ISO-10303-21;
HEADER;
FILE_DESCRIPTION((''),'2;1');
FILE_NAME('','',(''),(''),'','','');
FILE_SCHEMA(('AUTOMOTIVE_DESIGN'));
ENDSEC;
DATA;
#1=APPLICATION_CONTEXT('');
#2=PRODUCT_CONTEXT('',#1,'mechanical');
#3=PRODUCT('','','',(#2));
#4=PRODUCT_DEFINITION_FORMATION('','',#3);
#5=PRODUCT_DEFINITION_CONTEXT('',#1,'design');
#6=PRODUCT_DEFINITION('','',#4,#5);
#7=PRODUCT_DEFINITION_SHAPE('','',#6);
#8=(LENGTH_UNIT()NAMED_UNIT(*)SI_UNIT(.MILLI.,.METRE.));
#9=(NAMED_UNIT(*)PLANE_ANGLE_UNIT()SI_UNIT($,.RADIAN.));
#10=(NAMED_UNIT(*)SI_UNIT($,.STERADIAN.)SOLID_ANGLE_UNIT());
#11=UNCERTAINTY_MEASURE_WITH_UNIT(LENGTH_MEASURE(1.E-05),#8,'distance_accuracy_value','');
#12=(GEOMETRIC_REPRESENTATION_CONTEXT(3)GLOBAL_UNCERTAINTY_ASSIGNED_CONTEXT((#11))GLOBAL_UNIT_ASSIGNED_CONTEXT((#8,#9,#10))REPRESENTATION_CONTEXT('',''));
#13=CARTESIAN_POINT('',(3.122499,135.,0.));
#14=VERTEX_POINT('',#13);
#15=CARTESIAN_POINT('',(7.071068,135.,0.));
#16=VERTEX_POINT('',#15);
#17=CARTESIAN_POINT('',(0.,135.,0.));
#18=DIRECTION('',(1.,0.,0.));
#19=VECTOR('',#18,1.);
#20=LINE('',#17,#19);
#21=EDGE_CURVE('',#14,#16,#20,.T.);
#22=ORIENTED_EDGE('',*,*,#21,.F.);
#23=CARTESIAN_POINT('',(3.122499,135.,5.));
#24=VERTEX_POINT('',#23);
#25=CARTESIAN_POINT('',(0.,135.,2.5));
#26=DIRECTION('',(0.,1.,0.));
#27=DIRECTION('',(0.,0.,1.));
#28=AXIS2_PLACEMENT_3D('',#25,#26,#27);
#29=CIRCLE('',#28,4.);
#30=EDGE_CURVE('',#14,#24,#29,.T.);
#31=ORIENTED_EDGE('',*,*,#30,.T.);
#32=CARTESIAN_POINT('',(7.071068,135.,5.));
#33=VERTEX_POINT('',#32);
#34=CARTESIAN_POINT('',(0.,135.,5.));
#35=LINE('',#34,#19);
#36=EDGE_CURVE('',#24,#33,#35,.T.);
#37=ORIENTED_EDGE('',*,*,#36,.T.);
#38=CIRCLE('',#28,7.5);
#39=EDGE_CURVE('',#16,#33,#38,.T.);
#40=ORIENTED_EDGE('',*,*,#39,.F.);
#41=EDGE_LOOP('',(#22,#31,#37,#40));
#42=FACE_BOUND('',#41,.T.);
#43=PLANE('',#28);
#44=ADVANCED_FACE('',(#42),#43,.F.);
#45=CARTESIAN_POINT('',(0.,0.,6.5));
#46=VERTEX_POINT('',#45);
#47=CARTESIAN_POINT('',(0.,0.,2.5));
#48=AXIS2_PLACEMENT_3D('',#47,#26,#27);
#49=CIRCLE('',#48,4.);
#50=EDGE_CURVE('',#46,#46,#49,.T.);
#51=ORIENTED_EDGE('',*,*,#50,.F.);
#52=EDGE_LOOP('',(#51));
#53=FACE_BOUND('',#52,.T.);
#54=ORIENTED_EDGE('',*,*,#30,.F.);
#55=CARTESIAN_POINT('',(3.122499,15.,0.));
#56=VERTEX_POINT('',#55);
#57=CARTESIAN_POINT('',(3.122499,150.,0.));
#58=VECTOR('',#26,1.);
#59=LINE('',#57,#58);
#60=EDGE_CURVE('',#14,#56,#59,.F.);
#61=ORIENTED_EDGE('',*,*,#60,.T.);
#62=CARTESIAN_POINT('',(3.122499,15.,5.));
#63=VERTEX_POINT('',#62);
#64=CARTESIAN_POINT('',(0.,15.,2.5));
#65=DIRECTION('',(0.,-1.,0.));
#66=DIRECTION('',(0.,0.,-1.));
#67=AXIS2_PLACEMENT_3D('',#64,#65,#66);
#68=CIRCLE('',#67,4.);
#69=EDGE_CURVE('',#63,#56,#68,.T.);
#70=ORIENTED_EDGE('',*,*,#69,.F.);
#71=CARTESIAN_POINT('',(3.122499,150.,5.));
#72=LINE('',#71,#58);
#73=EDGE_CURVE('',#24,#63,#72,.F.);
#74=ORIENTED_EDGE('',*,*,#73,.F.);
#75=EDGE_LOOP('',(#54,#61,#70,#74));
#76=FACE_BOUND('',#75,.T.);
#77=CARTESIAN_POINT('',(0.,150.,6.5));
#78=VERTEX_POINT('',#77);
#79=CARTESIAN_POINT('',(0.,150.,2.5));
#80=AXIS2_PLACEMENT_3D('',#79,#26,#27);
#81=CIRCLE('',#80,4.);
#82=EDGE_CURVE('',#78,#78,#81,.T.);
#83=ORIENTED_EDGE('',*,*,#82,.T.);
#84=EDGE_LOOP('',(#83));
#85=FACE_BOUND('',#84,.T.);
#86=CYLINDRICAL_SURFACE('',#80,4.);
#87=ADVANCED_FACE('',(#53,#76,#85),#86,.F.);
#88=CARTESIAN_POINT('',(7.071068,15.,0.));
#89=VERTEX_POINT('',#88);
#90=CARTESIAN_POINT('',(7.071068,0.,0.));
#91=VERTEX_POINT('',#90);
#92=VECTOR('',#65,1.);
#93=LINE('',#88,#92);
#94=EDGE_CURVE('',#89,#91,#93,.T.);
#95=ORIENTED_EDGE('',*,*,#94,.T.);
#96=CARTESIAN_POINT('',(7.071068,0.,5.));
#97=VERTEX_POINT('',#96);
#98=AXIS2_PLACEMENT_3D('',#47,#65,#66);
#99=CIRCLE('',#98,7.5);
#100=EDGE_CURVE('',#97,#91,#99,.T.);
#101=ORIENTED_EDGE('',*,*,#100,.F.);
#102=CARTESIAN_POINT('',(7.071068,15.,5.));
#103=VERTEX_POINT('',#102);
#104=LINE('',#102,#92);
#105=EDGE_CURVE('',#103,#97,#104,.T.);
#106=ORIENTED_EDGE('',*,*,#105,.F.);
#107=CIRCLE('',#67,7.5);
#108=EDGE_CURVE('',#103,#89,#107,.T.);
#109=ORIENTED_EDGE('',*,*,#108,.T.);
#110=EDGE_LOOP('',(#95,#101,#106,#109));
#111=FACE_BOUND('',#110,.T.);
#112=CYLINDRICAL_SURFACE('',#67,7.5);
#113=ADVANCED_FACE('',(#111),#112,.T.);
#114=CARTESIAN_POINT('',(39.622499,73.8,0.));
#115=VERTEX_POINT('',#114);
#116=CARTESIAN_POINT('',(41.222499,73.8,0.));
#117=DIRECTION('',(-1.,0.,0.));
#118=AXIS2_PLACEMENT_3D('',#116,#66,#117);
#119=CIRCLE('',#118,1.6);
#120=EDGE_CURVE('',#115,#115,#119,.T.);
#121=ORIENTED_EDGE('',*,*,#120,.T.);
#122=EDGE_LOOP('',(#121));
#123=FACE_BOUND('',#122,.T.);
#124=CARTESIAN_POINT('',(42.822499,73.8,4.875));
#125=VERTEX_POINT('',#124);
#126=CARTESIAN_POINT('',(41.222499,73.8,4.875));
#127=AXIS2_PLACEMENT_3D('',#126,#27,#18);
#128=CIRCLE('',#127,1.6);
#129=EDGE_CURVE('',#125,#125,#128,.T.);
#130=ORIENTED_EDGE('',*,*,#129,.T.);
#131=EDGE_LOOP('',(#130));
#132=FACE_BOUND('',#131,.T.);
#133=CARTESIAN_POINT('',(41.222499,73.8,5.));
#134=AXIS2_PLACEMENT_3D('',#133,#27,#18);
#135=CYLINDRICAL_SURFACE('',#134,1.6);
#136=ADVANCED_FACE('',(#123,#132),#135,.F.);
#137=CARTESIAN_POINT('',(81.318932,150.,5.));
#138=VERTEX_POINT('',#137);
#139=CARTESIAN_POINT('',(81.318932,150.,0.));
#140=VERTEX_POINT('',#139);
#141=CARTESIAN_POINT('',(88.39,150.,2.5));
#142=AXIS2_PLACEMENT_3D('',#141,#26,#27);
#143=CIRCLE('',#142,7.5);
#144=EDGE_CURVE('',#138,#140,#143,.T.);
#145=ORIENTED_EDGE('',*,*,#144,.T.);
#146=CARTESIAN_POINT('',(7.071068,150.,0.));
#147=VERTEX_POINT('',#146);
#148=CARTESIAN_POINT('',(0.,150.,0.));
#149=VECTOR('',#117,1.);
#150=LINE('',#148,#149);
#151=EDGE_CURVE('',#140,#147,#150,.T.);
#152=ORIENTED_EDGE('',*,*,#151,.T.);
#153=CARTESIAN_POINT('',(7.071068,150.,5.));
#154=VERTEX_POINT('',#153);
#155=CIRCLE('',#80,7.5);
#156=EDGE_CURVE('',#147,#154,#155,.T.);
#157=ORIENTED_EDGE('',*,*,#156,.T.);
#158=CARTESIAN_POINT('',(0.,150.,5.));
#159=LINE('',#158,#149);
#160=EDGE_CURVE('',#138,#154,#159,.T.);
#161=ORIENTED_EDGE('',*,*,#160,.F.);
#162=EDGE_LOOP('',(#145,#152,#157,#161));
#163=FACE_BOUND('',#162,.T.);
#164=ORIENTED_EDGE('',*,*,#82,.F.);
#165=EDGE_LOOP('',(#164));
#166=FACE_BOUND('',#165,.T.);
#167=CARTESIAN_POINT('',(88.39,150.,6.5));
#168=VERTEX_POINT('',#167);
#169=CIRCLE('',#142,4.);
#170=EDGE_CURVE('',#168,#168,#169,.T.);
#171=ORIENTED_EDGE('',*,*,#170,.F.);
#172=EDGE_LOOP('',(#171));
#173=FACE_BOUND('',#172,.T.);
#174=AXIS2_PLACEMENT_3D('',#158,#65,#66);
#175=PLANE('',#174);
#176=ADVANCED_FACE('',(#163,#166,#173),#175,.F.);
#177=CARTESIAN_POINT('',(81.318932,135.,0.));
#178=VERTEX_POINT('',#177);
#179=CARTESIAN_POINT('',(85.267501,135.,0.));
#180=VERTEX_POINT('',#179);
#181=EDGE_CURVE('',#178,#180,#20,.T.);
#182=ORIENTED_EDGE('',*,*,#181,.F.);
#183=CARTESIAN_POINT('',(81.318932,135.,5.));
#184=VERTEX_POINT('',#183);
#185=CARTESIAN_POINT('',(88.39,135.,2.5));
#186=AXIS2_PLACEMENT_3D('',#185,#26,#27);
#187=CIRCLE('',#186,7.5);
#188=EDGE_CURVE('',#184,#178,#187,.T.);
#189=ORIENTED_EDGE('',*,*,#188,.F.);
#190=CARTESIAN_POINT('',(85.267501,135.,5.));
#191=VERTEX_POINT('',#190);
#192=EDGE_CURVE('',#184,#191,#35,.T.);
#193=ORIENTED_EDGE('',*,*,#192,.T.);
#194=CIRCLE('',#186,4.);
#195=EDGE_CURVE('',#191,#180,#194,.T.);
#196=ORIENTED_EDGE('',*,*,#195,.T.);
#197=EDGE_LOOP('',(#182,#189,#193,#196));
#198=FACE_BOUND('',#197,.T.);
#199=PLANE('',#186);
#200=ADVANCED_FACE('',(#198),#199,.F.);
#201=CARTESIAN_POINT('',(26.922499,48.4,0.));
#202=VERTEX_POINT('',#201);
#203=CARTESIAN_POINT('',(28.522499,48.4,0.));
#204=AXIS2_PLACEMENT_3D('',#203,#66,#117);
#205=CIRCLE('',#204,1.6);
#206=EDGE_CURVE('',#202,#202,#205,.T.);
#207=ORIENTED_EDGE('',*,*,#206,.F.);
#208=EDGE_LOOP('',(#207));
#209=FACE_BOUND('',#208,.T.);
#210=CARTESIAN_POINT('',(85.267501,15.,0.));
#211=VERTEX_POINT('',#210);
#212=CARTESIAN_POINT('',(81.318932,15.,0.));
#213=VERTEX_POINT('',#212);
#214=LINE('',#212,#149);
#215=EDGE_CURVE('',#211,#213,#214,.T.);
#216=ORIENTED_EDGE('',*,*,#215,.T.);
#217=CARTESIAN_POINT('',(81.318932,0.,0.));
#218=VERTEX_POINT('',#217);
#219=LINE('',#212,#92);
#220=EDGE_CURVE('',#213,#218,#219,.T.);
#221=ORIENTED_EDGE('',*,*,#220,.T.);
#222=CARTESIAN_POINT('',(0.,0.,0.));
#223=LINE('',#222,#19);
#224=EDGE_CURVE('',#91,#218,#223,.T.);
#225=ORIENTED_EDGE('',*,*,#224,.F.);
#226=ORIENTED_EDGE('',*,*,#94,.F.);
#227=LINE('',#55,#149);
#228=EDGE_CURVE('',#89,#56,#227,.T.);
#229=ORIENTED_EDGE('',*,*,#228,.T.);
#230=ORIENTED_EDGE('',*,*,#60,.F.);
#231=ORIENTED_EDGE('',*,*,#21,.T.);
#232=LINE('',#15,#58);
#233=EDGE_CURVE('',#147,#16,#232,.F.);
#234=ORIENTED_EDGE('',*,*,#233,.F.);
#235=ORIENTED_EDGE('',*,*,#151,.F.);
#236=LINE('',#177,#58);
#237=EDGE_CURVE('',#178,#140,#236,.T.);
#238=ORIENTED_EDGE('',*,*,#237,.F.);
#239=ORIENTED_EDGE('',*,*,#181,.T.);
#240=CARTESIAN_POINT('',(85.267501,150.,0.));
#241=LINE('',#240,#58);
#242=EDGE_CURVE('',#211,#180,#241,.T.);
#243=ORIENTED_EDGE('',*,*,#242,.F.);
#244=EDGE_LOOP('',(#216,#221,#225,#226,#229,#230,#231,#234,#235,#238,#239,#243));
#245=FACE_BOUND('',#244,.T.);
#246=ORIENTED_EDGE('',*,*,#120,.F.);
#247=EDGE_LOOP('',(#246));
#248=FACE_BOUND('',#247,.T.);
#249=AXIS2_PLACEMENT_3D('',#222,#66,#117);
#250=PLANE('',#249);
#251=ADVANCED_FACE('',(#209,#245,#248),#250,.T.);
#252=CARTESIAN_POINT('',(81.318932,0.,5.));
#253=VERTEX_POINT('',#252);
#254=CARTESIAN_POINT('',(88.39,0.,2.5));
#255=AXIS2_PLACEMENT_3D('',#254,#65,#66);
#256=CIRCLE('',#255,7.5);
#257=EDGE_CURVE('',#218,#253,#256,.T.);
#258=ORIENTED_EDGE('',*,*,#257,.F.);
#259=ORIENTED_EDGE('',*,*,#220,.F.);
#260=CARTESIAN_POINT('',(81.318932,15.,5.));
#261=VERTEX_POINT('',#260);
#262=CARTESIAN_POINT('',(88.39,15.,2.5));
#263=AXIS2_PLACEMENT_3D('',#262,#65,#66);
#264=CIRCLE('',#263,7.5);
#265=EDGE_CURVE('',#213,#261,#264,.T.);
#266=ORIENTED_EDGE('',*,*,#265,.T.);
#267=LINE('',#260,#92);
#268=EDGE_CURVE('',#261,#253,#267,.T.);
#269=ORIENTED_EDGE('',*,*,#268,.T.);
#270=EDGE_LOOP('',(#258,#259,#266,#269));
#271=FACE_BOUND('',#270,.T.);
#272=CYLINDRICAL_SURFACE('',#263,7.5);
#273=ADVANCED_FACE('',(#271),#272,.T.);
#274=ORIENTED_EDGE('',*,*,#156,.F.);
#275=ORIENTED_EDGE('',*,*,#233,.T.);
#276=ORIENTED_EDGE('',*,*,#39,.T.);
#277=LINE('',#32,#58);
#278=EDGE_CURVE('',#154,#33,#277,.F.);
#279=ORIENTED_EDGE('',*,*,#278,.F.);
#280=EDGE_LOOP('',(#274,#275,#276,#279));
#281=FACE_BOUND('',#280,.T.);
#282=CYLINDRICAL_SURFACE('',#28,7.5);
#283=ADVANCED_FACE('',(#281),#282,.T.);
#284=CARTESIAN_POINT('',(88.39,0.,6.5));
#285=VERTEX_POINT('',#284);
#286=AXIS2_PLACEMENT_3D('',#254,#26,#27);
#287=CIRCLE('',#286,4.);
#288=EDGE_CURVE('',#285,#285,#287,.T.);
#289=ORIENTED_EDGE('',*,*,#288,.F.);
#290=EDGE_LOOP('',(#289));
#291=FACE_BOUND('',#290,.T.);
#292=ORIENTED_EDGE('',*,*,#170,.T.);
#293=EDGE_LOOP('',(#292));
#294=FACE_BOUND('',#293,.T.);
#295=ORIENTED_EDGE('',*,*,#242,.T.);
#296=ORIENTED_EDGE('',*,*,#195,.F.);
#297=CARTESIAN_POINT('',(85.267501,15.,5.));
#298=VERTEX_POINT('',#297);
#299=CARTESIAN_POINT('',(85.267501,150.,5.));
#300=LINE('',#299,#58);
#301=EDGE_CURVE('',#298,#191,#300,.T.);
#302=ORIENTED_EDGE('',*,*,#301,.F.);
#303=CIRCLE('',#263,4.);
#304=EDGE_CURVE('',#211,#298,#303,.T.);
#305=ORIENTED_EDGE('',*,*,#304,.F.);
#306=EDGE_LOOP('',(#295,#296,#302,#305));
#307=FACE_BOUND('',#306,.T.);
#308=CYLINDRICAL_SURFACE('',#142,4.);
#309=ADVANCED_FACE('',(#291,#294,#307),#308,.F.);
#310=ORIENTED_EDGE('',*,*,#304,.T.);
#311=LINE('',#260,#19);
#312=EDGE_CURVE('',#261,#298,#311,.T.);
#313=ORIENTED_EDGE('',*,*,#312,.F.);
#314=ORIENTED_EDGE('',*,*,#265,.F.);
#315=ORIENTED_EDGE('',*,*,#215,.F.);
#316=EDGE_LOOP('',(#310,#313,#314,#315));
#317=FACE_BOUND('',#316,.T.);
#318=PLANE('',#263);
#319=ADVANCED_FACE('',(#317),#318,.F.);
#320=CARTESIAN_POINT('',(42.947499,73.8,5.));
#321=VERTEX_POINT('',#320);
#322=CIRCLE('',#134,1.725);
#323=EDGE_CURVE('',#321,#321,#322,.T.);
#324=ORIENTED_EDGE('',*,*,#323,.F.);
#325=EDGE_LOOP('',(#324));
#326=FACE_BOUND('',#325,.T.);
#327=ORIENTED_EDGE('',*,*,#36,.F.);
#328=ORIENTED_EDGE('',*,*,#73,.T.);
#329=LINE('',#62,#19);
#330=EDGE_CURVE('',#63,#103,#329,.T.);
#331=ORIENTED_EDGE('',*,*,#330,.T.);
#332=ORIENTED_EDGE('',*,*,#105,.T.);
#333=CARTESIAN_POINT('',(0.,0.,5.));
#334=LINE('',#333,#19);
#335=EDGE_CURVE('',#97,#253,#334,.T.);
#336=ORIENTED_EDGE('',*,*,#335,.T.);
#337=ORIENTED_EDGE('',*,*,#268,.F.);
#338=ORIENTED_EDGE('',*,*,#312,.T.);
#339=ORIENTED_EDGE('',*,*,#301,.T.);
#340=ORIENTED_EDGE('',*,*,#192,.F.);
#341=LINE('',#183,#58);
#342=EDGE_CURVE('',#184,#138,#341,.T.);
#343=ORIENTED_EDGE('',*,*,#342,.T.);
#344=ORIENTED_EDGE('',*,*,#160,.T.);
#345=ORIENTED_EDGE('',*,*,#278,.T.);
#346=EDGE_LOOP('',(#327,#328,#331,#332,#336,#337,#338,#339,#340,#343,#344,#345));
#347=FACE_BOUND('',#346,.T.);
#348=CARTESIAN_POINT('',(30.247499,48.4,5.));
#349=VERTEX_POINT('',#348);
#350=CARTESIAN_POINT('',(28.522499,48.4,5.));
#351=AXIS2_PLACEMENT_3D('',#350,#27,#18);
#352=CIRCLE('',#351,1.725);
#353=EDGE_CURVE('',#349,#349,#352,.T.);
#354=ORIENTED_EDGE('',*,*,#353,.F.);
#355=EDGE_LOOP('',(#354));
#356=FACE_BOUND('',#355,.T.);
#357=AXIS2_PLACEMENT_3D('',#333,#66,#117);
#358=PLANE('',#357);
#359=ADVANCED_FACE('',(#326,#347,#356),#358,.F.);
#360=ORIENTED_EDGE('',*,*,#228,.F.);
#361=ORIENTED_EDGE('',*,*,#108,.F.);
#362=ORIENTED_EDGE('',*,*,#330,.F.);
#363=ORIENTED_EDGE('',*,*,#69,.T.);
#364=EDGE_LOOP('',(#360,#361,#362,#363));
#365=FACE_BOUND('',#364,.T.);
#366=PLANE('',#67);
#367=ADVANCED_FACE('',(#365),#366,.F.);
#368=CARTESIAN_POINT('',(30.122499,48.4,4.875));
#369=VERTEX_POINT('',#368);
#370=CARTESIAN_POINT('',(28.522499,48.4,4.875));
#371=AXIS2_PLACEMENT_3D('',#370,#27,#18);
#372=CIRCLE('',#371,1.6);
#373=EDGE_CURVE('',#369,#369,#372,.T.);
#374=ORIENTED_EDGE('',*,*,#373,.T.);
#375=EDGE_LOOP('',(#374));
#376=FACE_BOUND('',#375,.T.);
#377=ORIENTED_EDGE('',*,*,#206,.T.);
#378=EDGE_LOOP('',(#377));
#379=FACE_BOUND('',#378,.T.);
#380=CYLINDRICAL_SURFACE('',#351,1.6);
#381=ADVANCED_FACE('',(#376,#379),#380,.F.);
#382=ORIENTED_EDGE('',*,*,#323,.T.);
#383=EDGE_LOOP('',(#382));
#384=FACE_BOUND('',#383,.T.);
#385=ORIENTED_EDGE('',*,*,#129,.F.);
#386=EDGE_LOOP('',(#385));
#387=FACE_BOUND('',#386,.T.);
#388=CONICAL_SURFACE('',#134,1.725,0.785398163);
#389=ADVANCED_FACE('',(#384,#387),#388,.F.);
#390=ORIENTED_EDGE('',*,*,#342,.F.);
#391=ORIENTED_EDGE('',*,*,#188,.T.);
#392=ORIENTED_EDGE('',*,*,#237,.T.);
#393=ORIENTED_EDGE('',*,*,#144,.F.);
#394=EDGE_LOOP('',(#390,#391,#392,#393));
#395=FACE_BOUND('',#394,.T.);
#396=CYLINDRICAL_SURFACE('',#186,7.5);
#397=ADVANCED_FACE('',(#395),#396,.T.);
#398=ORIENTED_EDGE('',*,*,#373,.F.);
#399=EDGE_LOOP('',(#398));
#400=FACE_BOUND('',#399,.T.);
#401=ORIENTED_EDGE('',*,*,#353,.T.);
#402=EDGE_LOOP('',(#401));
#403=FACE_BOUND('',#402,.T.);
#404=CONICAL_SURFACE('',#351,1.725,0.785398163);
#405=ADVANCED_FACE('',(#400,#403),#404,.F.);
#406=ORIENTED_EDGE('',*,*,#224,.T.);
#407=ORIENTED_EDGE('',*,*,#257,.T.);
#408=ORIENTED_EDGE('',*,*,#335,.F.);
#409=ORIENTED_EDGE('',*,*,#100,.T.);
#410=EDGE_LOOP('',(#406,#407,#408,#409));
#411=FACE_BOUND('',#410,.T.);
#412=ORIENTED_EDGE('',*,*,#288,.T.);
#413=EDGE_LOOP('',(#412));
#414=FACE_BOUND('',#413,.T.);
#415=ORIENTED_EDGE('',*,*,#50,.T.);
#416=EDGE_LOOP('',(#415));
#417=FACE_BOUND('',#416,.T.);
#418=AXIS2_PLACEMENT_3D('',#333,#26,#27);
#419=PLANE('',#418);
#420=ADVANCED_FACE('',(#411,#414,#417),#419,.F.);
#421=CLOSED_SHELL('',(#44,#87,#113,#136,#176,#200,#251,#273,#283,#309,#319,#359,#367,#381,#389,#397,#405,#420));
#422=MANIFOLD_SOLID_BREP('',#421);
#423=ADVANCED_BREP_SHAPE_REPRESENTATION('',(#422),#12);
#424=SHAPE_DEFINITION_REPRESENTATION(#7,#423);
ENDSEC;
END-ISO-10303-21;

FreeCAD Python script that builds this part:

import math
import FreeCAD as App
import Part
import Sketcher
from FreeCAD import Vector
Q = App.Units.Quantity


def add_polygon(sketch, points):
    """Adds a closed chain of lines whose ends are joined by coincident constraints."""
    first, n = sketch.GeometryCount, len(points)
    for a, b in zip(points, points[1:] + points[:1]):
        sketch.addGeometry(Part.LineSegment(App.Vector(*a, 0), App.Vector(*b, 0)), False)
    for i in range(n):
        sketch.addConstraint(Sketcher.Constraint("Coincident", first + i, 2, first + (i + 1) % n, 1))

doc = App.newDocument("Part")
body = doc.addObject("PartDesign::Body", "Body")

sketch1 = body.newObject("Sketcher::SketchObject", "Sketch")
sketch1.AttachmentSupport = (doc.getObject("XY_Plane"), [""])
sketch1.MapMode = "FlatFace"
add_polygon(sketch1, [(0, 150), (0, 0), (88, 0), (88, 150)])
sketch1.addConstraint([
    Sketcher.Constraint("Vertical", 0),
    Sketcher.Constraint("Horizontal", 1),
    Sketcher.Constraint("Vertical", 2),
    Sketcher.Constraint("Horizontal", 3),
    Sketcher.Constraint("Coincident", 0, 2, -1, 1),
    Sketcher.Constraint("DistanceY", 0, 2, 0, 1, Q("150 mm")),
    Sketcher.Constraint("DistanceX", 1, 1, 1, 2, Q("88.39 mm")),
])
pad1 = body.newObject("PartDesign::Pad", "Pad")
pad1.Profile = sketch1
pad1.Length = 5

sketch2 = body.newObject("Sketcher::SketchObject", "Sketch001")
sketch2.AttachmentSupport = (doc.getObject("XZ_Plane"), [""])
sketch2.MapMode = "FlatFace"
sketch2.AttachmentOffset = App.Placement(Vector(0, 0, -150), App.Rotation())
sketch2.addGeometry([
    Part.Circle(Vector(88, 2, 0), Vector(0, 0, 1), 8),
    Part.Circle(Vector(0, 2, 0), Vector(0, 0, 1), 8),
], False)
sketch2.addConstraint([
    Sketcher.Constraint("Equal", 0, 1),
    Sketcher.Constraint("PointOnObject", 1, 3, -2),
    Sketcher.Constraint("Horizontal", 0, 3, 1, 3),
    Sketcher.Constraint("Diameter", 0, Q("15 mm")),
    Sketcher.Constraint("DistanceY", -1, 1, 0, 3, Q("2.5 mm")),
    Sketcher.Constraint("DistanceX", -1, 1, 0, 3, Q("88.39 mm")),
])
pad2 = body.newObject("PartDesign::Pad", "Pad001")
pad2.Profile = sketch2
pad2.Length = 15

sketch3 = body.newObject("Sketcher::SketchObject", "Sketch002")
sketch3.AttachmentSupport = (doc.getObject("XZ_Plane"), [""])
sketch3.MapMode = "FlatFace"
sketch3.AttachmentOffset = App.Placement(Vector(0, 0, -150), App.Rotation())
sketch3.addGeometry([
    Part.Circle(Vector(0, 2.5, 0), Vector(0, 0, 1), 4),
    Part.Circle(Vector(88.4, 2.5, 0), Vector(0, 0, 1), 4),
], False)
sketch3.addConstraint([
    Sketcher.Constraint("Equal", 0, 1),
    Sketcher.Constraint("PointOnObject", 0, 3, -2),
    Sketcher.Constraint("Horizontal", 0, 3, 1, 3),
    Sketcher.Constraint("Diameter", 0, Q("8 mm")),
    Sketcher.Constraint("DistanceY", -1, 1, 0, 3, Q("2.5 mm")),
    Sketcher.Constraint("DistanceX", -1, 1, 1, 3, Q("88.39 mm")),
])
doc.recompute()
hole = body.newObject("PartDesign::Hole", "Hole")
hole.Profile = sketch3
hole.ThreadType = "None"
hole.Diameter = 8
hole.DepthType = "ThroughAll"
hole.Reversed = True

sketch4 = body.newObject("Sketcher::SketchObject", "Sketch003")
sketch4.AttachmentSupport = (doc.getObject("XZ_Plane"), [""])
sketch4.MapMode = "FlatFace"
sketch4.addGeometry([
    Part.LineSegment(Vector(85.3, 0, 0), Vector(81.3, 0, 0)),
    Part.ArcOfCircle(Part.Circle(Vector(88.4, 2.5, 0), Vector(0, 0, 1), 7.5), math.radians(-161), math.radians(161)),
    Part.LineSegment(Vector(81.3, 5, 0), Vector(85.3, 5, 0)),
    Part.ArcOfCircle(Part.Circle(Vector(88.4, 2.5, 0), Vector(0, 0, 1), 4), math.radians(141), math.radians(219)),
    Part.LineSegment(Vector(3.1, 5, 0), Vector(7.1, 5, 0)),
    Part.ArcOfCircle(Part.Circle(Vector(0, 2.5, 0), Vector(0, 0, 1), 7.5), math.radians(19), math.radians(341)),
    Part.LineSegment(Vector(7.1, 0, 0), Vector(3.1, 0, 0)),
    Part.ArcOfCircle(Part.Circle(Vector(0, 2.5, 0), Vector(0, 0, 1), 4), math.radians(-39), math.radians(39)),
], False)
sketch4.addConstraint([
    Sketcher.Constraint("Coincident", 0, 2, 1, 1),
    Sketcher.Constraint("Coincident", 1, 2, 2, 1),
    Sketcher.Constraint("Coincident", 2, 2, 3, 1),
    Sketcher.Constraint("Coincident", 3, 2, 0, 1),
    Sketcher.Constraint("Coincident", 4, 2, 5, 1),
    Sketcher.Constraint("Coincident", 5, 2, 6, 1),
    Sketcher.Constraint("Coincident", 6, 2, 7, 1),
    Sketcher.Constraint("Coincident", 7, 2, 4, 1),
    Sketcher.Constraint("Horizontal", 0),
    Sketcher.Constraint("Horizontal", 2),
    Sketcher.Constraint("Horizontal", 4),
    Sketcher.Constraint("Horizontal", 6),
    Sketcher.Constraint("Coincident", 3, 3, 1, 3),
    Sketcher.Constraint("Coincident", 7, 3, 5, 3),
    Sketcher.Constraint("Equal", 1, 5),
    Sketcher.Constraint("Equal", 3, 7),
    Sketcher.Constraint("PointOnObject", 5, 3, -2),
    Sketcher.Constraint("PointOnObject", 0, 2, -1),
    Sketcher.Constraint("PointOnObject", 5, 2, -1),
    Sketcher.Constraint("Horizontal", 3, 3, 5, 3),
    Sketcher.Constraint("Horizontal", 2, 2, 4, 2),
    Sketcher.Constraint("Vertical", 0, 2, 1, 2),
    Sketcher.Constraint("Radius", 3, Q("4 mm")),
    Sketcher.Constraint("Radius", 1, Q("7.5 mm")),
    Sketcher.Constraint("DistanceY", -1, 1, 1, 2, Q("5 mm")),
    Sketcher.Constraint("DistanceX", -1, 1, 1, 3, Q("88.39 mm")),
])
pad3 = body.newObject("PartDesign::Pad", "Pad002")
pad3.Profile = sketch4
pad3.Length = 15
pad3.Reversed = True

sketch5 = body.newObject("Sketcher::SketchObject", "Sketch004")
sketch5.AttachmentSupport = (doc.getObject("XZ_Plane"), [""])
sketch5.MapMode = "FlatFace"
sketch5.AttachmentOffset = App.Placement(Vector(0, 0, -15), App.Rotation())
sketch5.addGeometry([
    Part.Circle(Vector(0, 2.5, 0), Vector(0, 0, 1), 4),
    Part.Circle(Vector(88.4, 2.5, 0), Vector(0, 0, 1), 4),
], False)
sketch5.addConstraint([
    Sketcher.Constraint("Equal", 0, 1),
    Sketcher.Constraint("PointOnObject", 0, 3, -2),
    Sketcher.Constraint("Horizontal", 0, 3, 1, 3),
    Sketcher.Constraint("Diameter", 0, Q("8 mm")),
    Sketcher.Constraint("DistanceY", -1, 1, 0, 3, Q("2.5 mm")),
    Sketcher.Constraint("DistanceX", -1, 1, 1, 3, Q("88.39 mm")),
])
pocket1 = body.newObject("PartDesign::Pocket", "Pocket")
pocket1.Profile = sketch5
pocket1.Type = "ThroughAll"
pocket1.Reversed = True

sketch6 = body.newObject("Sketcher::SketchObject", "Sketch005")
sketch6.AttachmentSupport = (doc.getObject("XY_Plane"), [""])
sketch6.MapMode = "FlatFace"
sketch6.AttachmentOffset = App.Placement(Vector(0, 0, 5), App.Rotation())
sketch6.addGeometry([
    Part.Circle(Vector(41.2, 73.8, 0), Vector(0, 0, 1), 1.6),
    Part.Circle(Vector(28.5, 48.4, 0), Vector(0, 0, 1), 1.6),
], False)
sketch6.addConstraint([
    Sketcher.Constraint("Equal", 0, 1),
    Sketcher.Constraint("Diameter", 0, Q("3.2 mm")),
    Sketcher.Constraint("DistanceY", -1, 1, 0, 3, Q("73.8 mm")),
    Sketcher.Constraint("DistanceY", -1, 1, 1, 3, Q("48.4 mm")),
    Sketcher.Constraint("DistanceX", 1, 3, 0, 3, Q("12.7 mm")),
    Sketcher.Constraint("DistanceX", -1, 1, 0, 3, Q("41.222499 mm")),
])
doc.recompute()
hole2 = body.newObject("PartDesign::Hole", "Hole001")
hole2.Profile = sketch6
hole2.ThreadType = "None"
hole2.Diameter = 3.2
hole2.DepthType = "ThroughAll"
hole2.HoleCutType = "Countersink"
hole2.HoleCutDiameter = 3.45
hole2.HoleCutCountersinkAngle = 90

doc.recompute()
